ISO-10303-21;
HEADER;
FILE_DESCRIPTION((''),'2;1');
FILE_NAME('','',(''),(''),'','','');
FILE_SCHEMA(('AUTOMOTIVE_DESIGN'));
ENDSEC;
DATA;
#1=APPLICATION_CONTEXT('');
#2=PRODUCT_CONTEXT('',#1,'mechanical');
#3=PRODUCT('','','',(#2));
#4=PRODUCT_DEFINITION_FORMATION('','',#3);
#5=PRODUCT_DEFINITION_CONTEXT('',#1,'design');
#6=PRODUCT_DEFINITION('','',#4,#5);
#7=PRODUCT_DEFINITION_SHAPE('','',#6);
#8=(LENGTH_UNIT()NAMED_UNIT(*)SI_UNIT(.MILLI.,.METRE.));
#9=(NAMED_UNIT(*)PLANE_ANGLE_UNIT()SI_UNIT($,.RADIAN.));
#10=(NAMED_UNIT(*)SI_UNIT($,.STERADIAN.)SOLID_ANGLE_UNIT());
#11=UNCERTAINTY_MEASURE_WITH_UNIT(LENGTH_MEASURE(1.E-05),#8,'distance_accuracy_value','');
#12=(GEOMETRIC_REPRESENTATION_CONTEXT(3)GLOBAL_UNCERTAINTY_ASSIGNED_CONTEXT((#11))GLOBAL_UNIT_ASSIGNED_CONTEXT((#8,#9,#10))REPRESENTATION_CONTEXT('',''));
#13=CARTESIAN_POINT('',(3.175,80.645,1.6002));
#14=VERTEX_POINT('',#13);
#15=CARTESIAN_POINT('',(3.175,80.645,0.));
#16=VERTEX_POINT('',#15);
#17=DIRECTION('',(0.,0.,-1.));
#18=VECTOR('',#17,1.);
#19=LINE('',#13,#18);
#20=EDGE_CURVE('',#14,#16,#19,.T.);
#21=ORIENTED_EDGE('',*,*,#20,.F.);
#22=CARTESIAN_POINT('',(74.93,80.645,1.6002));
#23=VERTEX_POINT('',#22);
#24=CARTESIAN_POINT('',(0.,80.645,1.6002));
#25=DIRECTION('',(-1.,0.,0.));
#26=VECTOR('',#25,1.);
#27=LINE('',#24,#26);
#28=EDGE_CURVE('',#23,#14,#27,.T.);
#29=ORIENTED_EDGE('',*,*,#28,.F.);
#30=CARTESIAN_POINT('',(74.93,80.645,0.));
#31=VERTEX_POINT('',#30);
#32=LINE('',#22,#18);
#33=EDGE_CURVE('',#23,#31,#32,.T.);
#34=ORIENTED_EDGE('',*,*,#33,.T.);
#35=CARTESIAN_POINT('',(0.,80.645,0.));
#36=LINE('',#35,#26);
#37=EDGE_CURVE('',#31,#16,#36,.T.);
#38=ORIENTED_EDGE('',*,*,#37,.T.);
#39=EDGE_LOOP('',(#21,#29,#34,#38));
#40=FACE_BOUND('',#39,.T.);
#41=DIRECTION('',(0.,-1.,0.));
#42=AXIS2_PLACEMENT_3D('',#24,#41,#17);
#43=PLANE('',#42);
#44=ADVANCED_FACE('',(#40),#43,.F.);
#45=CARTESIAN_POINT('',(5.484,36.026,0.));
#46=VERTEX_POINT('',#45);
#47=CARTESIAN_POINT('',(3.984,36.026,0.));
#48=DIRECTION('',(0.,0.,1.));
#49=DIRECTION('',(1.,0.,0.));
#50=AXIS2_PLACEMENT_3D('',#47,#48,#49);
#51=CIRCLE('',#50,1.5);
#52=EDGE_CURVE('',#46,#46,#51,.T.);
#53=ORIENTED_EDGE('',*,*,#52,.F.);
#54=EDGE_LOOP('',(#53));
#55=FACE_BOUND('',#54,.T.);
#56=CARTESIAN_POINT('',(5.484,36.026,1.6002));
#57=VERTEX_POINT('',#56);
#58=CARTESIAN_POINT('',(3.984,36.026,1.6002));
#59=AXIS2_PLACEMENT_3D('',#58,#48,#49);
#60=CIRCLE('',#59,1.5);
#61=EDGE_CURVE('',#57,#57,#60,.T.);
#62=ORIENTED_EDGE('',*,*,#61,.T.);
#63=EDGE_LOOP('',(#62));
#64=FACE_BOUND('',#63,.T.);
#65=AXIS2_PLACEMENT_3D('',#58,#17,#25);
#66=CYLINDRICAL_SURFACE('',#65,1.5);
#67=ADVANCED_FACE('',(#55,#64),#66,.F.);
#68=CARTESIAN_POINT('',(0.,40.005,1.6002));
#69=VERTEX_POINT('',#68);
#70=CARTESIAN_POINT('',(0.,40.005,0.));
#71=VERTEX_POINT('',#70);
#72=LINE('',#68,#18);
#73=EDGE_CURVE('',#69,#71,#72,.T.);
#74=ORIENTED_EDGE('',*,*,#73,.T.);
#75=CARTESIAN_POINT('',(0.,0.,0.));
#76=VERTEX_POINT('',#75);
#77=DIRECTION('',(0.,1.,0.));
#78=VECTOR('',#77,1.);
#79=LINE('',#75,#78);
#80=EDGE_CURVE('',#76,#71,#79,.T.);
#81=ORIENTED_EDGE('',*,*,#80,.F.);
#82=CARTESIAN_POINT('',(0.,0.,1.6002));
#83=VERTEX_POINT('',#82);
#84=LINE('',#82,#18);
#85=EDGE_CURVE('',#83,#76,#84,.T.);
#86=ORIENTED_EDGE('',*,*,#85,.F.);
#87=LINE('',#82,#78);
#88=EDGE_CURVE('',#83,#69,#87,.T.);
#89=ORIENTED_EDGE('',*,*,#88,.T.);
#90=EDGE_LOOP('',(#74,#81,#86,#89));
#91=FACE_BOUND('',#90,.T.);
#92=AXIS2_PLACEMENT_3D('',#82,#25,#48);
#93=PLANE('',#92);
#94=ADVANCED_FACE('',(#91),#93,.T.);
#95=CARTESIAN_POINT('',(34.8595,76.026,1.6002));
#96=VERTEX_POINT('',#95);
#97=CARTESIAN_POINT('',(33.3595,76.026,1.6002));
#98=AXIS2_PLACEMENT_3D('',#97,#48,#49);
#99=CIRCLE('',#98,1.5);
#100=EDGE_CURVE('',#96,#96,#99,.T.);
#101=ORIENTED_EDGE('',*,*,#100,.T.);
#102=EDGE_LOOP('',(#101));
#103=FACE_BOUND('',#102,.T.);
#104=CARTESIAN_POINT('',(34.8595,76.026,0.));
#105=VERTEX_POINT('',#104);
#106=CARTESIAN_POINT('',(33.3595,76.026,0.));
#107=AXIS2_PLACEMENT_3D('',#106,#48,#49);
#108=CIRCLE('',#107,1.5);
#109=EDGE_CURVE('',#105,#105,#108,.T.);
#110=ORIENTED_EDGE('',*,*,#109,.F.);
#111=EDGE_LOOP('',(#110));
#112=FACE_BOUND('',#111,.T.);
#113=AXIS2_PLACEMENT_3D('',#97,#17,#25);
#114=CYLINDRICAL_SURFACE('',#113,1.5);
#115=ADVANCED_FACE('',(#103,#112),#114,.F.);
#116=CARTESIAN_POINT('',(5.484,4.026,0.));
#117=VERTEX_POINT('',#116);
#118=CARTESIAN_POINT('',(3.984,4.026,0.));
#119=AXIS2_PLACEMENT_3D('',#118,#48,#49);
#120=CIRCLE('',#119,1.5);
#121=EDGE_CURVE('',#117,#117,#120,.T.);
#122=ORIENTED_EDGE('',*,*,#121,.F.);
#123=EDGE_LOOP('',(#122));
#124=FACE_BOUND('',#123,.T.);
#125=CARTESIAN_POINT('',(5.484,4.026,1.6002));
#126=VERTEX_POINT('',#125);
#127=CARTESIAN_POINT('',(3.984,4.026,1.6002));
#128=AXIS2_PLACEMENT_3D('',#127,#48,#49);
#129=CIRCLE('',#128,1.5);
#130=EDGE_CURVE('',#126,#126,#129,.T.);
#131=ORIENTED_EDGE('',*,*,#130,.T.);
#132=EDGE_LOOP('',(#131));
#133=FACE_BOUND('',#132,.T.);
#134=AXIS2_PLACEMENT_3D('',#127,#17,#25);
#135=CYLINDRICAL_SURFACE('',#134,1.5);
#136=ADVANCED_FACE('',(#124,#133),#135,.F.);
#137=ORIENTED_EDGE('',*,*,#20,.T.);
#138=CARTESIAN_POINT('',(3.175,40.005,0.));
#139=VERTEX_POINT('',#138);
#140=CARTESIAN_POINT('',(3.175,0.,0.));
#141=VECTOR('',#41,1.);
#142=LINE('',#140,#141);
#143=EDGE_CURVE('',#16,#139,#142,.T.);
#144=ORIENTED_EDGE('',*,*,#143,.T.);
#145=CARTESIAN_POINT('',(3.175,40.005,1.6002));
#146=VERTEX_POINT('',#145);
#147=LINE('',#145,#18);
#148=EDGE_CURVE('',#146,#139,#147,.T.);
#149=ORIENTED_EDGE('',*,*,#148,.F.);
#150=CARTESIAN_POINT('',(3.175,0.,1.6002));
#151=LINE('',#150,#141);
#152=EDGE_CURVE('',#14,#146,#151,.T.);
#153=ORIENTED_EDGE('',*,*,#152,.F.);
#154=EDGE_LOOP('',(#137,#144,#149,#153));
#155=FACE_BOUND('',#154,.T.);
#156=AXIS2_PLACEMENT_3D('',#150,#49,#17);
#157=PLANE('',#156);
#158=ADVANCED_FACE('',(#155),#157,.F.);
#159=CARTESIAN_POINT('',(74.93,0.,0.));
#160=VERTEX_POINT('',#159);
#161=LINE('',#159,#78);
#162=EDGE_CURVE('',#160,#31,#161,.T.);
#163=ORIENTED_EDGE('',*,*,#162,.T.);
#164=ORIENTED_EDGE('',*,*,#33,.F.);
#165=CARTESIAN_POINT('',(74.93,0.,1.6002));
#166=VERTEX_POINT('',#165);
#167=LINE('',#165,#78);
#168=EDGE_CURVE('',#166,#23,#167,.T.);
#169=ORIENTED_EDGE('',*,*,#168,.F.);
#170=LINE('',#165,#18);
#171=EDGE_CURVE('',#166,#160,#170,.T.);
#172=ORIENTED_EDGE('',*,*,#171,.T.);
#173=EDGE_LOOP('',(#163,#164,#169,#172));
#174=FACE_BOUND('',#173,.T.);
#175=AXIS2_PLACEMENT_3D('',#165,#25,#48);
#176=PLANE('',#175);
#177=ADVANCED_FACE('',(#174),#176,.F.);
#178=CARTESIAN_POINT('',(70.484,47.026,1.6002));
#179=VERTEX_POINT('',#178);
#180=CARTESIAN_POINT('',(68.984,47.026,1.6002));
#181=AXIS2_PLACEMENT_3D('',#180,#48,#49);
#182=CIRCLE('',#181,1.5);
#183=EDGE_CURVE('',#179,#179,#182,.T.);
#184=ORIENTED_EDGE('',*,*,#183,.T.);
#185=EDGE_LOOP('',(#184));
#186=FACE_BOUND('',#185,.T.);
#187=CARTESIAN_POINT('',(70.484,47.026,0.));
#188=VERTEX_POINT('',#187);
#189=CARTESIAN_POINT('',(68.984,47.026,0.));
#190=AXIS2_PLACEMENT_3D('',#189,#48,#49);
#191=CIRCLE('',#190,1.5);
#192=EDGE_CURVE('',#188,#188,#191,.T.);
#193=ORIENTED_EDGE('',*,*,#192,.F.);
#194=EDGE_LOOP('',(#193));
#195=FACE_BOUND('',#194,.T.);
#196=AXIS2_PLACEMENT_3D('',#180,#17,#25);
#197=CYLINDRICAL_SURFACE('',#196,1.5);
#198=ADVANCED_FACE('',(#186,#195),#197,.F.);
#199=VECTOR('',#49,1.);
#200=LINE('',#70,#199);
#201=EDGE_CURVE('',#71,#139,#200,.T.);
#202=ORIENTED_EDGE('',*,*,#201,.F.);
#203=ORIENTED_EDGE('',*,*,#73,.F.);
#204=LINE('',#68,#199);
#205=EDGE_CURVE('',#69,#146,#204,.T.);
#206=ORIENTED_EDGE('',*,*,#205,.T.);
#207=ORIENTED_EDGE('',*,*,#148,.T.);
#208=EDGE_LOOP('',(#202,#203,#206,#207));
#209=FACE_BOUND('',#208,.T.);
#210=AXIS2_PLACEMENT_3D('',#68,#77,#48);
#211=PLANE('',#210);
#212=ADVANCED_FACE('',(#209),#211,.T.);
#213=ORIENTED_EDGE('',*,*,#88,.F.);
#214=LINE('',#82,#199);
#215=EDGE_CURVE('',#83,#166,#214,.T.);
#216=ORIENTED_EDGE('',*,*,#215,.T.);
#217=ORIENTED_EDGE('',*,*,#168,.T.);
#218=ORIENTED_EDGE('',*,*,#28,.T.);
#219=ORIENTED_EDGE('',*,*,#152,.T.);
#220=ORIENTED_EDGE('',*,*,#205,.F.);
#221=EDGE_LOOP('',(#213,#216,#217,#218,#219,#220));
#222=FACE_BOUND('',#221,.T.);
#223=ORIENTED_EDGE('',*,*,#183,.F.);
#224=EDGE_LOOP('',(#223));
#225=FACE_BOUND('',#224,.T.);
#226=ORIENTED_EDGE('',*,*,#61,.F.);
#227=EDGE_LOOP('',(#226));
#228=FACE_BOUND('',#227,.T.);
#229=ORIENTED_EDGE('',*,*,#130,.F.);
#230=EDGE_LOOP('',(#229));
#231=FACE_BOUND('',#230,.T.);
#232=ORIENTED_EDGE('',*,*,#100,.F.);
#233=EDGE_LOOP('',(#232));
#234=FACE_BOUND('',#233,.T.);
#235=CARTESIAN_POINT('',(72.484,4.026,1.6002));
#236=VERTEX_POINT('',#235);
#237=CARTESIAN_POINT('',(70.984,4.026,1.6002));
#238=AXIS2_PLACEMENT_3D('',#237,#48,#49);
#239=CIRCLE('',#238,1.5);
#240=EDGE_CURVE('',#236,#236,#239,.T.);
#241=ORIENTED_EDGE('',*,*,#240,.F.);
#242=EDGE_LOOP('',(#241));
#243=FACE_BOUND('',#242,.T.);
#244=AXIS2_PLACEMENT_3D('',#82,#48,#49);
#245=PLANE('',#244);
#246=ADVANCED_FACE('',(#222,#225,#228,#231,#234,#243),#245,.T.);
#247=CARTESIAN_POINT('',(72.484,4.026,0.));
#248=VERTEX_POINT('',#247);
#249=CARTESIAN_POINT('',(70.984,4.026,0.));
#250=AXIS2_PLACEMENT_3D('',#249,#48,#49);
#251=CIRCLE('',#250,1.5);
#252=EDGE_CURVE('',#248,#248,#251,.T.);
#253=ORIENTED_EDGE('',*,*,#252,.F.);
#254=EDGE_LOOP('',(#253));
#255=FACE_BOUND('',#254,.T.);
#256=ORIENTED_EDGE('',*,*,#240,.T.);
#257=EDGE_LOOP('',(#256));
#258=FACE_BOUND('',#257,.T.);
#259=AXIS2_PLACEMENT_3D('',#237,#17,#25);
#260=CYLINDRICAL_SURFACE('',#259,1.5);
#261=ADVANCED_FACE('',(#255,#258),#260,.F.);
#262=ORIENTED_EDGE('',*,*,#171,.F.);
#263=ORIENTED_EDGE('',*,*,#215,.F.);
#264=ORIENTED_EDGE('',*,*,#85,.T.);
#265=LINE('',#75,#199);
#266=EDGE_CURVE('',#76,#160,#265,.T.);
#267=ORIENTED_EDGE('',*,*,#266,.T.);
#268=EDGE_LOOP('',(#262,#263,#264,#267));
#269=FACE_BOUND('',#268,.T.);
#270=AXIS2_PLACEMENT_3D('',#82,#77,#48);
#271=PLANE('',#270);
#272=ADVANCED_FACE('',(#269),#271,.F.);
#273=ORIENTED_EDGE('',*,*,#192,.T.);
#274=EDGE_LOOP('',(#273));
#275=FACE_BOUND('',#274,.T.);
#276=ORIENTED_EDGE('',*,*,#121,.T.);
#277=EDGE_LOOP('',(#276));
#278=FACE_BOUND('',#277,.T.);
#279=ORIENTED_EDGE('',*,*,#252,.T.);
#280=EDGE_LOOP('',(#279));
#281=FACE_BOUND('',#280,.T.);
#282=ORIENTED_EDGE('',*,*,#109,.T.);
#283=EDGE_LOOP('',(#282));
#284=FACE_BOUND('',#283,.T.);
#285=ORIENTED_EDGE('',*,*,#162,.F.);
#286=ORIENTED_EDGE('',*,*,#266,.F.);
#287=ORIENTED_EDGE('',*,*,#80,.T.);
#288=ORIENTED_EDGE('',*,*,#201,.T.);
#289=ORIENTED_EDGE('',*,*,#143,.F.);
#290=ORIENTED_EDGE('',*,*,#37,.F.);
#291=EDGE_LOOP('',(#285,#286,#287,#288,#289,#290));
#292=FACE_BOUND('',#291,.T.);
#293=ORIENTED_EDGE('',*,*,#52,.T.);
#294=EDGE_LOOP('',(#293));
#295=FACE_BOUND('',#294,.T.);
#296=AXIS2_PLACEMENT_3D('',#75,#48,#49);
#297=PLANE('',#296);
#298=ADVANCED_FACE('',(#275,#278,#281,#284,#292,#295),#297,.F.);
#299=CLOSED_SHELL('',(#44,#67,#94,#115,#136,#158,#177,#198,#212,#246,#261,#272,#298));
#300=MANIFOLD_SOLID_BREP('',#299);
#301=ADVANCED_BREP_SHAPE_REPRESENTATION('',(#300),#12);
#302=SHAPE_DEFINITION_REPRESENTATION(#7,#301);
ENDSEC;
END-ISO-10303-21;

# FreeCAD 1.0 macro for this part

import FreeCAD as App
import Part
import Sketcher
from FreeCAD import Vector
Q = App.Units.Quantity


def add_polygon(sketch, points):
    """Adds a closed chain of lines whose ends are joined by coincident constraints."""
    first, n = sketch.GeometryCount, len(points)
    for a, b in zip(points, points[1:] + points[:1]):
        sketch.addGeometry(Part.LineSegment(App.Vector(*a, 0), App.Vector(*b, 0)), False)
    for i in range(n):
        sketch.addConstraint(Sketcher.Constraint("Coincident", first + i, 2, first + (i + 1) % n, 1))

doc = App.newDocument("Part")
body = doc.addObject("PartDesign::Body", "Body")

# Sketch on XY plane
sketch1 = body.newObject("Sketcher::SketchObject", "Sketch")
sketch1.AttachmentSupport = (doc.getObject("XY_Plane"), [""])
sketch1.MapMode = "FlatFace"
add_polygon(sketch1, [(74.9, 80.6), (3.2, 80.6), (3.2, 40), (0, 40), (0, 0), (74.9, 0)])  # lines 0-5
sketch1.addGeometry(Part.Circle(Vector(4, 4, 0), Vector(0, 0, 1), 1.5), False)  # 6
sketch1.addGeometry(Part.Circle(Vector(4, 36, 0), Vector(0, 0, 1), 1.5), False)  # 7
sketch1.addGeometry(Part.Circle(Vector(71, 4, 0), Vector(0, 0, 1), 1.5), False)  # 8
sketch1.addGeometry(Part.Circle(Vector(33.4, 76, 0), Vector(0, 0, 1), 1.5), False)  # 9
sketch1.addGeometry(Part.Circle(Vector(69, 47, 0), Vector(0, 0, 1), 1.5), False)  # 10
sketch1.addConstraint([
    Sketcher.Constraint("Horizontal", 0),
    Sketcher.Constraint("Vertical", 1),
    Sketcher.Constraint("Horizontal", 2),
    Sketcher.Constraint("Vertical", 3),
    Sketcher.Constraint("Horizontal", 4),
    Sketcher.Constraint("Vertical", 5),
    Sketcher.Constraint("Coincident", 3, 2, -1, 1),
    Sketcher.Constraint("Equal", 6, 7),
    Sketcher.Constraint("Equal", 7, 8),
    Sketcher.Constraint("Equal", 8, 9),
    Sketcher.Constraint("Equal", 9, 10),
    Sketcher.Constraint("Horizontal", 6, 3, 8, 3),
    Sketcher.Constraint("Vertical", 6, 3, 7, 3),
    Sketcher.Constraint("DistanceY", 1, 2, 1, 1, Q("1.6 in")),
    Sketcher.Constraint("DistanceX", 4, 1, 4, 2, Q("2.95 in")),
    Sketcher.Constraint("Diameter", 6, Q("3 mm")),
    Sketcher.Constraint("DistanceX", 0, 2, 0, 1, Q("2.825 in")),
    Sketcher.Constraint("DistanceY", 3, 2, 3, 1, Q("1.575 in")),
    Sketcher.Constraint("DistanceX", -1, 1, 6, 3, Q("3.984 mm")),
    Sketcher.Constraint("DistanceY", -1, 1, 6, 3, Q("4.026 mm")),
    Sketcher.Constraint("DistanceY", -1, 1, 7, 3, Q("36.026 mm")),
    Sketcher.Constraint("DistanceX", -1, 1, 8, 3, Q("70.984 mm")),
    Sketcher.Constraint("DistanceX", -1, 1, 9, 3, Q("33.3595 mm")),
    Sketcher.Constraint("DistanceY", -1, 1, 9, 3, Q("76.026 mm")),
    Sketcher.Constraint("DistanceX", -1, 1, 10, 3, Q("68.984 mm")),
    Sketcher.Constraint("DistanceY", -1, 1, 10, 3, Q("47.026 mm")),
])
pad1 = body.newObject("PartDesign::Pad", "Pad")
pad1.Profile = sketch1
pad1.Length = Q("0.063 in")

doc.recompute()
